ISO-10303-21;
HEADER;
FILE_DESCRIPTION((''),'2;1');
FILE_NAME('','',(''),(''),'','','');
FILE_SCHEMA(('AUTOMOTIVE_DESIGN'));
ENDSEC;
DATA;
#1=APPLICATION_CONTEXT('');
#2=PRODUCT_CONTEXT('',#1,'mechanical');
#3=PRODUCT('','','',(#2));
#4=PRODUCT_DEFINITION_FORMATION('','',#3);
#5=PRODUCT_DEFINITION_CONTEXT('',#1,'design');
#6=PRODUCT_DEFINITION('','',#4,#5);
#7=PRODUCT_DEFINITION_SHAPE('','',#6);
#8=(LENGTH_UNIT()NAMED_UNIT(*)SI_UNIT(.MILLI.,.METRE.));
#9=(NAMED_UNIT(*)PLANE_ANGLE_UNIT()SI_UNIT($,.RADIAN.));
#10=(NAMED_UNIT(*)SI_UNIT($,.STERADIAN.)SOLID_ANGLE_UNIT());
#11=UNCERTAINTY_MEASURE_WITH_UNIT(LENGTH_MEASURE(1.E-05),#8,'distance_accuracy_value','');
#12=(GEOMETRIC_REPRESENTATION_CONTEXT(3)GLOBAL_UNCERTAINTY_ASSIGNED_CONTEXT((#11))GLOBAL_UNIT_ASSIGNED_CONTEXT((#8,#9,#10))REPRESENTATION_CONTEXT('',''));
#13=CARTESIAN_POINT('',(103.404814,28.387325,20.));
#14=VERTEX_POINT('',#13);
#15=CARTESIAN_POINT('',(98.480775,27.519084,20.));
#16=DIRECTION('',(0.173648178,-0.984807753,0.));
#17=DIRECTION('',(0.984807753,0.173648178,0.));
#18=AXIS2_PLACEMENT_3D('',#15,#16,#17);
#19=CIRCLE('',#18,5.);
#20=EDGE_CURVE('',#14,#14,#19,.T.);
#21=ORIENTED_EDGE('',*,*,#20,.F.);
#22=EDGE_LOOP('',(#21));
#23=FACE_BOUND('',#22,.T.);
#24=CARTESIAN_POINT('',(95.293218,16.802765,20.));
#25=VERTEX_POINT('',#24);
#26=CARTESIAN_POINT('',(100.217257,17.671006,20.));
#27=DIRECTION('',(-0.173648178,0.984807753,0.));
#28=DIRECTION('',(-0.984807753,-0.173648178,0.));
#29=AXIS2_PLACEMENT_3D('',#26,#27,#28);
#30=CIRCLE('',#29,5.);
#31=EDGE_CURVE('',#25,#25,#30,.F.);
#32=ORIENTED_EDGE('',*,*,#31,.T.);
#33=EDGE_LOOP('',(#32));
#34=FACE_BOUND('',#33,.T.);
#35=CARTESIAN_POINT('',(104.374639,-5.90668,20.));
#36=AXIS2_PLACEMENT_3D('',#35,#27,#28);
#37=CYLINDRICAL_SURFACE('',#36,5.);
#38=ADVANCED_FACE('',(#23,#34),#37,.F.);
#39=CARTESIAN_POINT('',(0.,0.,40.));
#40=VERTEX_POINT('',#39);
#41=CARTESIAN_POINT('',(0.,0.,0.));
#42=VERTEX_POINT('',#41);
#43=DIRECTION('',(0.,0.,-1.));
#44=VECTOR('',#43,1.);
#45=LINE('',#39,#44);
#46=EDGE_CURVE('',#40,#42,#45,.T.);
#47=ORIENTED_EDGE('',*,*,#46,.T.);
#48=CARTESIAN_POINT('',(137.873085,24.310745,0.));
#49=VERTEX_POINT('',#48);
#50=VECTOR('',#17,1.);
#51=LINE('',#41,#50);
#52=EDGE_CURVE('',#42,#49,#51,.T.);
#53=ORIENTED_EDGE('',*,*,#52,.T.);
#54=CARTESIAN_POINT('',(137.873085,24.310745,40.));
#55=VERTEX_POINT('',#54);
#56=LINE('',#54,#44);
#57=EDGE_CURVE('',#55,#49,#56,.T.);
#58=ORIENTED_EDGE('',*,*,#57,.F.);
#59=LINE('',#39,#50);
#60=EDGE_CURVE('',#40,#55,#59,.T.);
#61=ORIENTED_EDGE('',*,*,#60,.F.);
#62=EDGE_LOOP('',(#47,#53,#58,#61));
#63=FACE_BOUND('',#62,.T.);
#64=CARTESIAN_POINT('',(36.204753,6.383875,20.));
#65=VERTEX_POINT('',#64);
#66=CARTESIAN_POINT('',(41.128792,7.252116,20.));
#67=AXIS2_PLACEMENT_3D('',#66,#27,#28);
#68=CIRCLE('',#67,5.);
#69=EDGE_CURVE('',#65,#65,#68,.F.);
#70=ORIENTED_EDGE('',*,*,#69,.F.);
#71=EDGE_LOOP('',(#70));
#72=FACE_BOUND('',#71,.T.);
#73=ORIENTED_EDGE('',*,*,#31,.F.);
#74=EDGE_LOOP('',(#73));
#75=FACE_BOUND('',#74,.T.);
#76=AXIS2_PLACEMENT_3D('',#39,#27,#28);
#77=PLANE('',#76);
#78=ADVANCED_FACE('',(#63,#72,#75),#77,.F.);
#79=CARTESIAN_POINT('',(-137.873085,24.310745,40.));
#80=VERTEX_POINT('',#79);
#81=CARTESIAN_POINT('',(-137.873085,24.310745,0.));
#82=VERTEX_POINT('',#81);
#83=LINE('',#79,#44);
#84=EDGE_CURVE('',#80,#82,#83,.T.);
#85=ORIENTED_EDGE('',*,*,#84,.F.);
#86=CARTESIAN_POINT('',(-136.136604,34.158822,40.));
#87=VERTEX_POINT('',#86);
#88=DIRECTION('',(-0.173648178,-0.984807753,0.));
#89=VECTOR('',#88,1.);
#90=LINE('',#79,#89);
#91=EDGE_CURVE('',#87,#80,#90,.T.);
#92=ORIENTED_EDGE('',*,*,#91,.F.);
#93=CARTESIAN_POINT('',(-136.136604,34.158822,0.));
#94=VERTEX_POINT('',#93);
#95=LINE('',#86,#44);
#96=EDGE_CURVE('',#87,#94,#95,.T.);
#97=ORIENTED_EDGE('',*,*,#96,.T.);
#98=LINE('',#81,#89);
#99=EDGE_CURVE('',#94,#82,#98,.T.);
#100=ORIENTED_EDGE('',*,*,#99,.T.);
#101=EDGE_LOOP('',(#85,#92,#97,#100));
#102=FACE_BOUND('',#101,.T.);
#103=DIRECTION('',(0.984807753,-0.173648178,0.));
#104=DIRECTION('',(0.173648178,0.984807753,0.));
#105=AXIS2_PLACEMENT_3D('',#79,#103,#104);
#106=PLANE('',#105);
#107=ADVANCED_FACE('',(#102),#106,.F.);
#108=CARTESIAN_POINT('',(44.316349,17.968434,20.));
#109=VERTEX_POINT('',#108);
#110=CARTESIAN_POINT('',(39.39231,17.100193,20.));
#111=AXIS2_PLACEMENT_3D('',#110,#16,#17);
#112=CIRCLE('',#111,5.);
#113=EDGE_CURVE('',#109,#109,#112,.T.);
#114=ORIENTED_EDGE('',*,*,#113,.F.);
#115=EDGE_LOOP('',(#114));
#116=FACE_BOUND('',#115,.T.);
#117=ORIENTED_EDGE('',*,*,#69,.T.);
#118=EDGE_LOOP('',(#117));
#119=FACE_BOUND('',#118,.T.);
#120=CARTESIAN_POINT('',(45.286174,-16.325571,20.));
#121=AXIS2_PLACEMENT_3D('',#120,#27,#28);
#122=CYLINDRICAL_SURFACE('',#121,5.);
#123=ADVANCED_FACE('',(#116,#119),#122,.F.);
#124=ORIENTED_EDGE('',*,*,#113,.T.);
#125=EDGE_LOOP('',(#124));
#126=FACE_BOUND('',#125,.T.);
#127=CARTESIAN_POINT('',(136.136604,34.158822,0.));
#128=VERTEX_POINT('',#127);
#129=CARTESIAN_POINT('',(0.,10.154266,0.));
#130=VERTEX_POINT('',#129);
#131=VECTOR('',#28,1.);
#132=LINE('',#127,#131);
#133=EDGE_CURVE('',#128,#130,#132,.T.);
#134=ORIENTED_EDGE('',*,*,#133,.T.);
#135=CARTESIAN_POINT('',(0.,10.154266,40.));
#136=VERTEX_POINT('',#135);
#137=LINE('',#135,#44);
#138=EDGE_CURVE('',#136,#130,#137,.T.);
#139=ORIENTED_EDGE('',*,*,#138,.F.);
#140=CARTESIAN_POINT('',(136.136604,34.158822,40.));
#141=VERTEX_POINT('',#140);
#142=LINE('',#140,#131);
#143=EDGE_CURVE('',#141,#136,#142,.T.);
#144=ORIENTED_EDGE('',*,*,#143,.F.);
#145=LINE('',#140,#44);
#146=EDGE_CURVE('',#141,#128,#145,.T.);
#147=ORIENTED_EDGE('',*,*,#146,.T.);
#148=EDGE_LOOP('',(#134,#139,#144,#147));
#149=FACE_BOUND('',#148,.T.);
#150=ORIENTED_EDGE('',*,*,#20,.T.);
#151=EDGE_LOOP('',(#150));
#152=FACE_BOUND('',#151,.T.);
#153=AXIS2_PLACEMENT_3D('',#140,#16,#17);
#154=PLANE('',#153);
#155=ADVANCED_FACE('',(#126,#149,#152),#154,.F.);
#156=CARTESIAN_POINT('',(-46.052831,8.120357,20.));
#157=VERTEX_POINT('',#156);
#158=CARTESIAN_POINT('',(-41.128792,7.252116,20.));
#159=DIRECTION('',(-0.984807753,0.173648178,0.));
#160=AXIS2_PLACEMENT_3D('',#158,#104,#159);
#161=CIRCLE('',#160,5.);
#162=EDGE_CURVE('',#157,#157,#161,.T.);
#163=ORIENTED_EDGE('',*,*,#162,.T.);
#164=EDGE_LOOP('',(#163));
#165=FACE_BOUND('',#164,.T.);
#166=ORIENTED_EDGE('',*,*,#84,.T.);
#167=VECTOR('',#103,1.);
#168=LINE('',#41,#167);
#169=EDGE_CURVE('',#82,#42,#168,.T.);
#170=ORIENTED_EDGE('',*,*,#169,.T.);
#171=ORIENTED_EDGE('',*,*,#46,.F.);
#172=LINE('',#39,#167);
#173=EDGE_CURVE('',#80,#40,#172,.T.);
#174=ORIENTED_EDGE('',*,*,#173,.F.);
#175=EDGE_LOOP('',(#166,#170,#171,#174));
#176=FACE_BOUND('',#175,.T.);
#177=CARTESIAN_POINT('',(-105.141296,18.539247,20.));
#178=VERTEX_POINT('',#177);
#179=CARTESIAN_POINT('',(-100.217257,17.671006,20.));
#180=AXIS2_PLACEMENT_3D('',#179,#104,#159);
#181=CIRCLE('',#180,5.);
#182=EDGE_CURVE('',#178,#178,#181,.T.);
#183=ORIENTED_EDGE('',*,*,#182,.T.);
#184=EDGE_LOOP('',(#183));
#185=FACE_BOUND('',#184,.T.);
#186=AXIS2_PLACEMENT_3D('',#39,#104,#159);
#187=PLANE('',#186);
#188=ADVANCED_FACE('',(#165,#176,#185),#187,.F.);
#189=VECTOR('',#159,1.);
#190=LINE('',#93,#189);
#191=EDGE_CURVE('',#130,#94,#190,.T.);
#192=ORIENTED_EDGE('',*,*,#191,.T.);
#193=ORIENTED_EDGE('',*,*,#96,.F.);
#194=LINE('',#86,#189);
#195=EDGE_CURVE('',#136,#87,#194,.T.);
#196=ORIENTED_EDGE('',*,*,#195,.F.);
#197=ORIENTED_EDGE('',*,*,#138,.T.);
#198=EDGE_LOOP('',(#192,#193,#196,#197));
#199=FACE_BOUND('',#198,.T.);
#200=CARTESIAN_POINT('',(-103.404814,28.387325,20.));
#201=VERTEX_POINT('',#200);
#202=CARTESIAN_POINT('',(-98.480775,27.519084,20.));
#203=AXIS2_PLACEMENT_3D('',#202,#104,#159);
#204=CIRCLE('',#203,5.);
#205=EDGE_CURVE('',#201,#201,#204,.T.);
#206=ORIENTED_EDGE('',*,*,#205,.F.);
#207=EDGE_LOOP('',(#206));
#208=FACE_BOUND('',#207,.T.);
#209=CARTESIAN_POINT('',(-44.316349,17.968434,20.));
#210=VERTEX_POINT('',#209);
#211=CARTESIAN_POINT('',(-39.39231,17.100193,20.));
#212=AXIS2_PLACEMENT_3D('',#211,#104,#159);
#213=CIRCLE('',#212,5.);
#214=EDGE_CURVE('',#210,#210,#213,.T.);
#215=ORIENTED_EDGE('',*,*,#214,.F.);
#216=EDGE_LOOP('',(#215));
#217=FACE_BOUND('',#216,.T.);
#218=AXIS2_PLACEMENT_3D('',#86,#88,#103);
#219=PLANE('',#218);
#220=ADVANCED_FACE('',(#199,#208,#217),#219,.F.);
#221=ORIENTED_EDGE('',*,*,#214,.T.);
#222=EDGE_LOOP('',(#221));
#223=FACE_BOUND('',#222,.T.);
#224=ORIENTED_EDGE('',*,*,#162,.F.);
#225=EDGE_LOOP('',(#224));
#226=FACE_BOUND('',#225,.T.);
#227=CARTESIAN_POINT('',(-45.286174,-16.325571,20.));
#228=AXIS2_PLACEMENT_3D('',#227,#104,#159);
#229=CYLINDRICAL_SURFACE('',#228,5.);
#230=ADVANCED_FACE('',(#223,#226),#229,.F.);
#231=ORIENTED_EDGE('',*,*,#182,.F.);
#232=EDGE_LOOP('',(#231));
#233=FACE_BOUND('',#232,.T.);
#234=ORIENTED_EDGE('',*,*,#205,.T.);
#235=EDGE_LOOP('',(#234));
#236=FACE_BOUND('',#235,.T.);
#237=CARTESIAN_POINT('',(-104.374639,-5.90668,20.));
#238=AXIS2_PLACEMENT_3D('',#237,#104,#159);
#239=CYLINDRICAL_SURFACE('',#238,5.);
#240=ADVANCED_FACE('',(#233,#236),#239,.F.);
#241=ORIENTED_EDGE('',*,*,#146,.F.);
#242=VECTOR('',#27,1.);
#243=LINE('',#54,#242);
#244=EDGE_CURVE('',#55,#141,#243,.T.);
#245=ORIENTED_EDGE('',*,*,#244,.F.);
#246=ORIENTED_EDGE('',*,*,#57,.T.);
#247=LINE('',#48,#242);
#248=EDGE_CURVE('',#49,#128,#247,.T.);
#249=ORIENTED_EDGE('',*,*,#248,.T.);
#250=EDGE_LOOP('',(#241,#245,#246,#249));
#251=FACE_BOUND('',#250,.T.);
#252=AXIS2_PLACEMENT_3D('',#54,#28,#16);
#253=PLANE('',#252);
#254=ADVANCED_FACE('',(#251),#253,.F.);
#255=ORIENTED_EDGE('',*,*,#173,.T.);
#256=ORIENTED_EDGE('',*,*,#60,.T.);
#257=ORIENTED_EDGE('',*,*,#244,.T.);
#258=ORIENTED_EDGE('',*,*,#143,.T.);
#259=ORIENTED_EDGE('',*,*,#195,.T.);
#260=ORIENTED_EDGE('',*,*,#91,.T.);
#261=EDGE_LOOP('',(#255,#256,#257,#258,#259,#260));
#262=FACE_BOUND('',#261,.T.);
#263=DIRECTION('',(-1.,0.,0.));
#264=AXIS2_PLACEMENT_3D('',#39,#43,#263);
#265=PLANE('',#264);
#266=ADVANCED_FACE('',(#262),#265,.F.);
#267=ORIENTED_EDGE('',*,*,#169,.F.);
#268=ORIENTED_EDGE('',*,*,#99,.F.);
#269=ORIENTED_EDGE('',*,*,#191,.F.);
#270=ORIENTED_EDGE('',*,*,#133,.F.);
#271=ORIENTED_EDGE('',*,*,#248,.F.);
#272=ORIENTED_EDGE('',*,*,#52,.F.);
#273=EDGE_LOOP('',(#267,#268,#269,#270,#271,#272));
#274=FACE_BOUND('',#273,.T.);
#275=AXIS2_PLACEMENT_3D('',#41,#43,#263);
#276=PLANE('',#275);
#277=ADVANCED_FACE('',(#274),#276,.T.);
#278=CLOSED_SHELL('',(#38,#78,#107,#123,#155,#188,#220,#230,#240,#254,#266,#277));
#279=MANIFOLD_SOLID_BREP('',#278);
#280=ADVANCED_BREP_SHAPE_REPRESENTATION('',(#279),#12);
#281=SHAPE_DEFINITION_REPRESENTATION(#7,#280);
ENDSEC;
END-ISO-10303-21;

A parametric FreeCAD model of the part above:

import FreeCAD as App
import Part
import Sketcher

V = App.Vector
Q = App.Units.Quantity


def add_polygon(sketch, points):
    """Adds a closed chain of lines whose ends are joined by coincident constraints."""
    first, n = sketch.GeometryCount, len(points)
    for a, b in zip(points, points[1:] + points[:1]):
        sketch.addGeometry(Part.LineSegment(App.Vector(*a, 0), App.Vector(*b, 0)), False)
    for i in range(n):
        sketch.addConstraint(Sketcher.Constraint("Coincident", first + i, 2, first + (i + 1) % n, 1))

doc = App.newDocument("Part")
body = doc.addObject("PartDesign::Body", "Body")

# Sketch on XY plane
sketch1 = body.newObject("Sketcher::SketchObject", "Sketch")
sketch1.AttachmentSupport = (doc.getObject("XY_Plane"), [""])
sketch1.MapMode = "FlatFace"
add_polygon(sketch1, [(-138, 24), (0, 0), (138, 24), (136, 34), (0, 10), (-136, 34)])  # lines 0-5
sketch1.addConstraint(Sketcher.Constraint("Coincident", 0, 2, -1, 1))
sketch1.addConstraint(Sketcher.Constraint("Symmetric", 2, 2, 4, 2, -2))
sketch1.addConstraint(Sketcher.Constraint("Symmetric", 1, 2, 5, 2, -2))
sketch1.addConstraint(Sketcher.Constraint("PointOnObject", 3, 2, -2))
sketch1.addConstraint(Sketcher.Constraint("Perpendicular", 1, 2))
sketch1.addConstraint(Sketcher.Constraint("Perpendicular", 2, 3))
sketch1.addConstraint(Sketcher.Constraint("Angle", 0, Q("-10 deg")))
sketch1.addConstraint(Sketcher.Constraint("Distance", 0, 140.0))
sketch1.addConstraint(Sketcher.Constraint("Distance", 2, 10.0))
pad1 = body.newObject("PartDesign::Pad", "Pad")
pad1.Profile = sketch1
pad1.Length = 40

# Sketch on an angled plane
sketch2 = body.newObject("Sketcher::SketchObject", "Sketch001")
sketch2.Placement = App.Placement(V(1.736482, 9.848078, 0), App.Rotation(V(0.984807753, -0.173648178, 0), V(0, 0, -1), V(0.173648178, 0.984807753, 0), "ZXY"))
sketch2.addGeometry(Part.Circle(V(-42, -20, 0), V(0, 0, 1), 5), False)
sketch2.addGeometry(Part.Circle(V(-102, -20, 0), V(0, 0, 1), 5), False)
sketch2.addConstraint(Sketcher.Constraint("Equal", 0, 1))
sketch2.addConstraint(Sketcher.Constraint("Horizontal", 0, 3, 1, 3))
sketch2.addConstraint(Sketcher.Constraint("Diameter", 0, 10.0))
sketch2.addConstraint(Sketcher.Constraint("DistanceY", 0, 3, -1, 1, 20.0))
sketch2.addConstraint(Sketcher.Constraint("DistanceX", 1, 3, 0, 3, 60.0))
sketch2.addConstraint(Sketcher.Constraint("DistanceX", 0, 3, -1, 1, 41.76327))
pocket1 = body.newObject("PartDesign::Pocket", "Pocket")
pocket1.Profile = sketch2
pocket1.Type = "ThroughAll"
doc.recompute()

mirrored = body.newObject("PartDesign::Mirrored", "Mirrored")
mirrored.Originals = [pocket1]
mirrored.MirrorPlane = (doc.getObject("YZ_Plane"), [""])
body.Tip = mirrored

doc.recompute()
